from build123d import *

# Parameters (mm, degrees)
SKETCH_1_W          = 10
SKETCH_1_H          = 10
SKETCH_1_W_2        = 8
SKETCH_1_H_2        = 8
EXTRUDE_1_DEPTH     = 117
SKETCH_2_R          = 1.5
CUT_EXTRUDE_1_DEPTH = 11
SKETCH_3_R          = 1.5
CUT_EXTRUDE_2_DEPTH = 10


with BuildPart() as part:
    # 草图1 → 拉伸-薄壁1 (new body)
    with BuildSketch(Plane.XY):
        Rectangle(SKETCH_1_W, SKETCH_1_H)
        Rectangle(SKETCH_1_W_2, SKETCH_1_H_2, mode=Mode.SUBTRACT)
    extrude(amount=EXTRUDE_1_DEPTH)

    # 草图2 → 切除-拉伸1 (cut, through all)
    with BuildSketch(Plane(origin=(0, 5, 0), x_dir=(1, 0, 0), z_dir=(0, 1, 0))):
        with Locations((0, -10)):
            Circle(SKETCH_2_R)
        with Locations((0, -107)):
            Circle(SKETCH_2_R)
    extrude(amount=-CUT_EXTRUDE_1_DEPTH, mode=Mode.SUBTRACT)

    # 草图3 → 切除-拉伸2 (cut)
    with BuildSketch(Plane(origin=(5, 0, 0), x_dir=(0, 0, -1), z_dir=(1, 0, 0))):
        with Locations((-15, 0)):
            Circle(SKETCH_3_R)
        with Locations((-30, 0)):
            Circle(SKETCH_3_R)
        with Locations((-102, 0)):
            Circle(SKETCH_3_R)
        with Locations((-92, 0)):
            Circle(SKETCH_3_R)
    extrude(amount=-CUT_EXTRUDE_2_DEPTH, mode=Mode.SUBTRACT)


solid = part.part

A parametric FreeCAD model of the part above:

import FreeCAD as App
import Part
import Sketcher

V = App.Vector

doc = App.newDocument("Part")
body = doc.addObject("PartDesign::Body", "Body")

sketch1 = body.newObject("Sketcher::SketchObject", "Sketch")
sketch1.AttachmentSupport = (doc.getObject("XY_Plane"), [""])
sketch1.MapMode = "FlatFace"
sketch1.addGeometry([
    Part.LineSegment(V(-5, 5, 0), V(-5, -5, 0)),
    Part.LineSegment(V(-5, -5, 0), V(5, -5, 0)),
    Part.LineSegment(V(5, -5, 0), V(5, 5, 0)),
    Part.LineSegment(V(5, 5, 0), V(-5, 5, 0)),
    Part.LineSegment(V(4, -4, 0), V(-4, -4, 0)),
    Part.LineSegment(V(-4, -4, 0), V(-4, 4, 0)),
    Part.LineSegment(V(-4, 4, 0), V(4, 4, 0)),
    Part.LineSegment(V(4, 4, 0), V(4, -4, 0)),
], False)
sketch1.addConstraint([
    Sketcher.Constraint("Coincident", 0, 2, 1, 1),
    Sketcher.Constraint("Coincident", 1, 2, 2, 1),
    Sketcher.Constraint("Coincident", 2, 2, 3, 1),
    Sketcher.Constraint("Coincident", 3, 2, 0, 1),
    Sketcher.Constraint("Coincident", 4, 2, 5, 1),
    Sketcher.Constraint("Coincident", 5, 2, 6, 1),
    Sketcher.Constraint("Coincident", 6, 2, 7, 1),
    Sketcher.Constraint("Coincident", 7, 2, 4, 1),
    Sketcher.Constraint("Vertical", 0),
    Sketcher.Constraint("Horizontal", 1),
    Sketcher.Constraint("Vertical", 2),
    Sketcher.Constraint("Horizontal", 3),
    Sketcher.Constraint("Horizontal", 4),
    Sketcher.Constraint("Vertical", 5),
    Sketcher.Constraint("Horizontal", 6),
    Sketcher.Constraint("Vertical", 7),
    Sketcher.Constraint("Symmetric", 0, 2, 2, 2, -1, 1),
    Sketcher.Constraint("Symmetric", 4, 2, 6, 2, -1, 1),
    Sketcher.Constraint("Equal", 3, 0),
    Sketcher.Constraint("Equal", 6, 5),
    Sketcher.Constraint("DistanceX", 1, 1, 1, 2, 10.0),
    Sketcher.Constraint("DistanceX", 4, 2, 4, 1, 8.0),
])
pad1 = body.newObject("PartDesign::Pad", "Pad")
pad1.Profile = sketch1
pad1.Length = 117

sketch2 = body.newObject("Sketcher::SketchObject", "Sketch001")
sketch2.AttachmentSupport = (doc.getObject("XZ_Plane"), [""])
sketch2.MapMode = "FlatFace"
sketch2.AttachmentOffset = App.Placement(V(0, 0, -5), App.Rotation())
sketch2.addGeometry([
    Part.Circle(V(0, 10, 0), V(0, 0, 1), 1.5),
    Part.Circle(V(0, 107, 0), V(0, 0, 1), 1.5),
], False)
sketch2.addConstraint([
    Sketcher.Constraint("Equal", 0, 1),
    Sketcher.Constraint("PointOnObject", 0, 3, -2),
    Sketcher.Constraint("PointOnObject", 1, 3, -2),
    Sketcher.Constraint("Diameter", 0, 3.0),
    Sketcher.Constraint("DistanceY", -1, 1, 0, 3, 10.0),
    Sketcher.Constraint("DistanceY", -1, 1, 1, 3, 107.0),
])
pocket1 = body.newObject("PartDesign::Pocket", "Pocket")
pocket1.Profile = sketch2
pocket1.Type = "ThroughAll"
pocket1.Reversed = True

sketch3 = body.newObject("Sketcher::SketchObject", "Sketch002")
sketch3.AttachmentSupport = (doc.getObject("YZ_Plane"), [""])
sketch3.MapMode = "FlatFace"
sketch3.AttachmentOffset = App.Placement(V(0, 0, 5), App.Rotation())
sketch3.addGeometry([
    Part.Circle(V(0, 15, 0), V(0, 0, 1), 1.5),
    Part.Circle(V(0, 30, 0), V(0, 0, 1), 1.5),
    Part.Circle(V(0, 102, 0), V(0, 0, 1), 1.5),
    Part.Circle(V(0, 92, 0), V(0, 0, 1), 1.5),
], False)
sketch3.addConstraint([
    Sketcher.Constraint("Equal", 0, 1),
    Sketcher.Constraint("Equal", 1, 2),
    Sketcher.Constraint("Equal", 2, 3),
    Sketcher.Constraint("PointOnObject", 0, 3, -2),
    Sketcher.Constraint("PointOnObject", 1, 3, -2),
    Sketcher.Constraint("PointOnObject", 2, 3, -2),
    Sketcher.Constraint("PointOnObject", 3, 3, -2),
    Sketcher.Constraint("Diameter", 0, 3.0),
    Sketcher.Constraint("DistanceY", -1, 1, 0, 3, 15.0),
    Sketcher.Constraint("DistanceY", -1, 1, 1, 3, 30.0),
    Sketcher.Constraint("DistanceY", -1, 1, 2, 3, 102.0),
    Sketcher.Constraint("DistanceY", -1, 1, 3, 3, 92.0),
])
pocket2 = body.newObject("PartDesign::Pocket", "Pocket001")
pocket2.Profile = sketch3
pocket2.Length = 10

doc.recompute()
